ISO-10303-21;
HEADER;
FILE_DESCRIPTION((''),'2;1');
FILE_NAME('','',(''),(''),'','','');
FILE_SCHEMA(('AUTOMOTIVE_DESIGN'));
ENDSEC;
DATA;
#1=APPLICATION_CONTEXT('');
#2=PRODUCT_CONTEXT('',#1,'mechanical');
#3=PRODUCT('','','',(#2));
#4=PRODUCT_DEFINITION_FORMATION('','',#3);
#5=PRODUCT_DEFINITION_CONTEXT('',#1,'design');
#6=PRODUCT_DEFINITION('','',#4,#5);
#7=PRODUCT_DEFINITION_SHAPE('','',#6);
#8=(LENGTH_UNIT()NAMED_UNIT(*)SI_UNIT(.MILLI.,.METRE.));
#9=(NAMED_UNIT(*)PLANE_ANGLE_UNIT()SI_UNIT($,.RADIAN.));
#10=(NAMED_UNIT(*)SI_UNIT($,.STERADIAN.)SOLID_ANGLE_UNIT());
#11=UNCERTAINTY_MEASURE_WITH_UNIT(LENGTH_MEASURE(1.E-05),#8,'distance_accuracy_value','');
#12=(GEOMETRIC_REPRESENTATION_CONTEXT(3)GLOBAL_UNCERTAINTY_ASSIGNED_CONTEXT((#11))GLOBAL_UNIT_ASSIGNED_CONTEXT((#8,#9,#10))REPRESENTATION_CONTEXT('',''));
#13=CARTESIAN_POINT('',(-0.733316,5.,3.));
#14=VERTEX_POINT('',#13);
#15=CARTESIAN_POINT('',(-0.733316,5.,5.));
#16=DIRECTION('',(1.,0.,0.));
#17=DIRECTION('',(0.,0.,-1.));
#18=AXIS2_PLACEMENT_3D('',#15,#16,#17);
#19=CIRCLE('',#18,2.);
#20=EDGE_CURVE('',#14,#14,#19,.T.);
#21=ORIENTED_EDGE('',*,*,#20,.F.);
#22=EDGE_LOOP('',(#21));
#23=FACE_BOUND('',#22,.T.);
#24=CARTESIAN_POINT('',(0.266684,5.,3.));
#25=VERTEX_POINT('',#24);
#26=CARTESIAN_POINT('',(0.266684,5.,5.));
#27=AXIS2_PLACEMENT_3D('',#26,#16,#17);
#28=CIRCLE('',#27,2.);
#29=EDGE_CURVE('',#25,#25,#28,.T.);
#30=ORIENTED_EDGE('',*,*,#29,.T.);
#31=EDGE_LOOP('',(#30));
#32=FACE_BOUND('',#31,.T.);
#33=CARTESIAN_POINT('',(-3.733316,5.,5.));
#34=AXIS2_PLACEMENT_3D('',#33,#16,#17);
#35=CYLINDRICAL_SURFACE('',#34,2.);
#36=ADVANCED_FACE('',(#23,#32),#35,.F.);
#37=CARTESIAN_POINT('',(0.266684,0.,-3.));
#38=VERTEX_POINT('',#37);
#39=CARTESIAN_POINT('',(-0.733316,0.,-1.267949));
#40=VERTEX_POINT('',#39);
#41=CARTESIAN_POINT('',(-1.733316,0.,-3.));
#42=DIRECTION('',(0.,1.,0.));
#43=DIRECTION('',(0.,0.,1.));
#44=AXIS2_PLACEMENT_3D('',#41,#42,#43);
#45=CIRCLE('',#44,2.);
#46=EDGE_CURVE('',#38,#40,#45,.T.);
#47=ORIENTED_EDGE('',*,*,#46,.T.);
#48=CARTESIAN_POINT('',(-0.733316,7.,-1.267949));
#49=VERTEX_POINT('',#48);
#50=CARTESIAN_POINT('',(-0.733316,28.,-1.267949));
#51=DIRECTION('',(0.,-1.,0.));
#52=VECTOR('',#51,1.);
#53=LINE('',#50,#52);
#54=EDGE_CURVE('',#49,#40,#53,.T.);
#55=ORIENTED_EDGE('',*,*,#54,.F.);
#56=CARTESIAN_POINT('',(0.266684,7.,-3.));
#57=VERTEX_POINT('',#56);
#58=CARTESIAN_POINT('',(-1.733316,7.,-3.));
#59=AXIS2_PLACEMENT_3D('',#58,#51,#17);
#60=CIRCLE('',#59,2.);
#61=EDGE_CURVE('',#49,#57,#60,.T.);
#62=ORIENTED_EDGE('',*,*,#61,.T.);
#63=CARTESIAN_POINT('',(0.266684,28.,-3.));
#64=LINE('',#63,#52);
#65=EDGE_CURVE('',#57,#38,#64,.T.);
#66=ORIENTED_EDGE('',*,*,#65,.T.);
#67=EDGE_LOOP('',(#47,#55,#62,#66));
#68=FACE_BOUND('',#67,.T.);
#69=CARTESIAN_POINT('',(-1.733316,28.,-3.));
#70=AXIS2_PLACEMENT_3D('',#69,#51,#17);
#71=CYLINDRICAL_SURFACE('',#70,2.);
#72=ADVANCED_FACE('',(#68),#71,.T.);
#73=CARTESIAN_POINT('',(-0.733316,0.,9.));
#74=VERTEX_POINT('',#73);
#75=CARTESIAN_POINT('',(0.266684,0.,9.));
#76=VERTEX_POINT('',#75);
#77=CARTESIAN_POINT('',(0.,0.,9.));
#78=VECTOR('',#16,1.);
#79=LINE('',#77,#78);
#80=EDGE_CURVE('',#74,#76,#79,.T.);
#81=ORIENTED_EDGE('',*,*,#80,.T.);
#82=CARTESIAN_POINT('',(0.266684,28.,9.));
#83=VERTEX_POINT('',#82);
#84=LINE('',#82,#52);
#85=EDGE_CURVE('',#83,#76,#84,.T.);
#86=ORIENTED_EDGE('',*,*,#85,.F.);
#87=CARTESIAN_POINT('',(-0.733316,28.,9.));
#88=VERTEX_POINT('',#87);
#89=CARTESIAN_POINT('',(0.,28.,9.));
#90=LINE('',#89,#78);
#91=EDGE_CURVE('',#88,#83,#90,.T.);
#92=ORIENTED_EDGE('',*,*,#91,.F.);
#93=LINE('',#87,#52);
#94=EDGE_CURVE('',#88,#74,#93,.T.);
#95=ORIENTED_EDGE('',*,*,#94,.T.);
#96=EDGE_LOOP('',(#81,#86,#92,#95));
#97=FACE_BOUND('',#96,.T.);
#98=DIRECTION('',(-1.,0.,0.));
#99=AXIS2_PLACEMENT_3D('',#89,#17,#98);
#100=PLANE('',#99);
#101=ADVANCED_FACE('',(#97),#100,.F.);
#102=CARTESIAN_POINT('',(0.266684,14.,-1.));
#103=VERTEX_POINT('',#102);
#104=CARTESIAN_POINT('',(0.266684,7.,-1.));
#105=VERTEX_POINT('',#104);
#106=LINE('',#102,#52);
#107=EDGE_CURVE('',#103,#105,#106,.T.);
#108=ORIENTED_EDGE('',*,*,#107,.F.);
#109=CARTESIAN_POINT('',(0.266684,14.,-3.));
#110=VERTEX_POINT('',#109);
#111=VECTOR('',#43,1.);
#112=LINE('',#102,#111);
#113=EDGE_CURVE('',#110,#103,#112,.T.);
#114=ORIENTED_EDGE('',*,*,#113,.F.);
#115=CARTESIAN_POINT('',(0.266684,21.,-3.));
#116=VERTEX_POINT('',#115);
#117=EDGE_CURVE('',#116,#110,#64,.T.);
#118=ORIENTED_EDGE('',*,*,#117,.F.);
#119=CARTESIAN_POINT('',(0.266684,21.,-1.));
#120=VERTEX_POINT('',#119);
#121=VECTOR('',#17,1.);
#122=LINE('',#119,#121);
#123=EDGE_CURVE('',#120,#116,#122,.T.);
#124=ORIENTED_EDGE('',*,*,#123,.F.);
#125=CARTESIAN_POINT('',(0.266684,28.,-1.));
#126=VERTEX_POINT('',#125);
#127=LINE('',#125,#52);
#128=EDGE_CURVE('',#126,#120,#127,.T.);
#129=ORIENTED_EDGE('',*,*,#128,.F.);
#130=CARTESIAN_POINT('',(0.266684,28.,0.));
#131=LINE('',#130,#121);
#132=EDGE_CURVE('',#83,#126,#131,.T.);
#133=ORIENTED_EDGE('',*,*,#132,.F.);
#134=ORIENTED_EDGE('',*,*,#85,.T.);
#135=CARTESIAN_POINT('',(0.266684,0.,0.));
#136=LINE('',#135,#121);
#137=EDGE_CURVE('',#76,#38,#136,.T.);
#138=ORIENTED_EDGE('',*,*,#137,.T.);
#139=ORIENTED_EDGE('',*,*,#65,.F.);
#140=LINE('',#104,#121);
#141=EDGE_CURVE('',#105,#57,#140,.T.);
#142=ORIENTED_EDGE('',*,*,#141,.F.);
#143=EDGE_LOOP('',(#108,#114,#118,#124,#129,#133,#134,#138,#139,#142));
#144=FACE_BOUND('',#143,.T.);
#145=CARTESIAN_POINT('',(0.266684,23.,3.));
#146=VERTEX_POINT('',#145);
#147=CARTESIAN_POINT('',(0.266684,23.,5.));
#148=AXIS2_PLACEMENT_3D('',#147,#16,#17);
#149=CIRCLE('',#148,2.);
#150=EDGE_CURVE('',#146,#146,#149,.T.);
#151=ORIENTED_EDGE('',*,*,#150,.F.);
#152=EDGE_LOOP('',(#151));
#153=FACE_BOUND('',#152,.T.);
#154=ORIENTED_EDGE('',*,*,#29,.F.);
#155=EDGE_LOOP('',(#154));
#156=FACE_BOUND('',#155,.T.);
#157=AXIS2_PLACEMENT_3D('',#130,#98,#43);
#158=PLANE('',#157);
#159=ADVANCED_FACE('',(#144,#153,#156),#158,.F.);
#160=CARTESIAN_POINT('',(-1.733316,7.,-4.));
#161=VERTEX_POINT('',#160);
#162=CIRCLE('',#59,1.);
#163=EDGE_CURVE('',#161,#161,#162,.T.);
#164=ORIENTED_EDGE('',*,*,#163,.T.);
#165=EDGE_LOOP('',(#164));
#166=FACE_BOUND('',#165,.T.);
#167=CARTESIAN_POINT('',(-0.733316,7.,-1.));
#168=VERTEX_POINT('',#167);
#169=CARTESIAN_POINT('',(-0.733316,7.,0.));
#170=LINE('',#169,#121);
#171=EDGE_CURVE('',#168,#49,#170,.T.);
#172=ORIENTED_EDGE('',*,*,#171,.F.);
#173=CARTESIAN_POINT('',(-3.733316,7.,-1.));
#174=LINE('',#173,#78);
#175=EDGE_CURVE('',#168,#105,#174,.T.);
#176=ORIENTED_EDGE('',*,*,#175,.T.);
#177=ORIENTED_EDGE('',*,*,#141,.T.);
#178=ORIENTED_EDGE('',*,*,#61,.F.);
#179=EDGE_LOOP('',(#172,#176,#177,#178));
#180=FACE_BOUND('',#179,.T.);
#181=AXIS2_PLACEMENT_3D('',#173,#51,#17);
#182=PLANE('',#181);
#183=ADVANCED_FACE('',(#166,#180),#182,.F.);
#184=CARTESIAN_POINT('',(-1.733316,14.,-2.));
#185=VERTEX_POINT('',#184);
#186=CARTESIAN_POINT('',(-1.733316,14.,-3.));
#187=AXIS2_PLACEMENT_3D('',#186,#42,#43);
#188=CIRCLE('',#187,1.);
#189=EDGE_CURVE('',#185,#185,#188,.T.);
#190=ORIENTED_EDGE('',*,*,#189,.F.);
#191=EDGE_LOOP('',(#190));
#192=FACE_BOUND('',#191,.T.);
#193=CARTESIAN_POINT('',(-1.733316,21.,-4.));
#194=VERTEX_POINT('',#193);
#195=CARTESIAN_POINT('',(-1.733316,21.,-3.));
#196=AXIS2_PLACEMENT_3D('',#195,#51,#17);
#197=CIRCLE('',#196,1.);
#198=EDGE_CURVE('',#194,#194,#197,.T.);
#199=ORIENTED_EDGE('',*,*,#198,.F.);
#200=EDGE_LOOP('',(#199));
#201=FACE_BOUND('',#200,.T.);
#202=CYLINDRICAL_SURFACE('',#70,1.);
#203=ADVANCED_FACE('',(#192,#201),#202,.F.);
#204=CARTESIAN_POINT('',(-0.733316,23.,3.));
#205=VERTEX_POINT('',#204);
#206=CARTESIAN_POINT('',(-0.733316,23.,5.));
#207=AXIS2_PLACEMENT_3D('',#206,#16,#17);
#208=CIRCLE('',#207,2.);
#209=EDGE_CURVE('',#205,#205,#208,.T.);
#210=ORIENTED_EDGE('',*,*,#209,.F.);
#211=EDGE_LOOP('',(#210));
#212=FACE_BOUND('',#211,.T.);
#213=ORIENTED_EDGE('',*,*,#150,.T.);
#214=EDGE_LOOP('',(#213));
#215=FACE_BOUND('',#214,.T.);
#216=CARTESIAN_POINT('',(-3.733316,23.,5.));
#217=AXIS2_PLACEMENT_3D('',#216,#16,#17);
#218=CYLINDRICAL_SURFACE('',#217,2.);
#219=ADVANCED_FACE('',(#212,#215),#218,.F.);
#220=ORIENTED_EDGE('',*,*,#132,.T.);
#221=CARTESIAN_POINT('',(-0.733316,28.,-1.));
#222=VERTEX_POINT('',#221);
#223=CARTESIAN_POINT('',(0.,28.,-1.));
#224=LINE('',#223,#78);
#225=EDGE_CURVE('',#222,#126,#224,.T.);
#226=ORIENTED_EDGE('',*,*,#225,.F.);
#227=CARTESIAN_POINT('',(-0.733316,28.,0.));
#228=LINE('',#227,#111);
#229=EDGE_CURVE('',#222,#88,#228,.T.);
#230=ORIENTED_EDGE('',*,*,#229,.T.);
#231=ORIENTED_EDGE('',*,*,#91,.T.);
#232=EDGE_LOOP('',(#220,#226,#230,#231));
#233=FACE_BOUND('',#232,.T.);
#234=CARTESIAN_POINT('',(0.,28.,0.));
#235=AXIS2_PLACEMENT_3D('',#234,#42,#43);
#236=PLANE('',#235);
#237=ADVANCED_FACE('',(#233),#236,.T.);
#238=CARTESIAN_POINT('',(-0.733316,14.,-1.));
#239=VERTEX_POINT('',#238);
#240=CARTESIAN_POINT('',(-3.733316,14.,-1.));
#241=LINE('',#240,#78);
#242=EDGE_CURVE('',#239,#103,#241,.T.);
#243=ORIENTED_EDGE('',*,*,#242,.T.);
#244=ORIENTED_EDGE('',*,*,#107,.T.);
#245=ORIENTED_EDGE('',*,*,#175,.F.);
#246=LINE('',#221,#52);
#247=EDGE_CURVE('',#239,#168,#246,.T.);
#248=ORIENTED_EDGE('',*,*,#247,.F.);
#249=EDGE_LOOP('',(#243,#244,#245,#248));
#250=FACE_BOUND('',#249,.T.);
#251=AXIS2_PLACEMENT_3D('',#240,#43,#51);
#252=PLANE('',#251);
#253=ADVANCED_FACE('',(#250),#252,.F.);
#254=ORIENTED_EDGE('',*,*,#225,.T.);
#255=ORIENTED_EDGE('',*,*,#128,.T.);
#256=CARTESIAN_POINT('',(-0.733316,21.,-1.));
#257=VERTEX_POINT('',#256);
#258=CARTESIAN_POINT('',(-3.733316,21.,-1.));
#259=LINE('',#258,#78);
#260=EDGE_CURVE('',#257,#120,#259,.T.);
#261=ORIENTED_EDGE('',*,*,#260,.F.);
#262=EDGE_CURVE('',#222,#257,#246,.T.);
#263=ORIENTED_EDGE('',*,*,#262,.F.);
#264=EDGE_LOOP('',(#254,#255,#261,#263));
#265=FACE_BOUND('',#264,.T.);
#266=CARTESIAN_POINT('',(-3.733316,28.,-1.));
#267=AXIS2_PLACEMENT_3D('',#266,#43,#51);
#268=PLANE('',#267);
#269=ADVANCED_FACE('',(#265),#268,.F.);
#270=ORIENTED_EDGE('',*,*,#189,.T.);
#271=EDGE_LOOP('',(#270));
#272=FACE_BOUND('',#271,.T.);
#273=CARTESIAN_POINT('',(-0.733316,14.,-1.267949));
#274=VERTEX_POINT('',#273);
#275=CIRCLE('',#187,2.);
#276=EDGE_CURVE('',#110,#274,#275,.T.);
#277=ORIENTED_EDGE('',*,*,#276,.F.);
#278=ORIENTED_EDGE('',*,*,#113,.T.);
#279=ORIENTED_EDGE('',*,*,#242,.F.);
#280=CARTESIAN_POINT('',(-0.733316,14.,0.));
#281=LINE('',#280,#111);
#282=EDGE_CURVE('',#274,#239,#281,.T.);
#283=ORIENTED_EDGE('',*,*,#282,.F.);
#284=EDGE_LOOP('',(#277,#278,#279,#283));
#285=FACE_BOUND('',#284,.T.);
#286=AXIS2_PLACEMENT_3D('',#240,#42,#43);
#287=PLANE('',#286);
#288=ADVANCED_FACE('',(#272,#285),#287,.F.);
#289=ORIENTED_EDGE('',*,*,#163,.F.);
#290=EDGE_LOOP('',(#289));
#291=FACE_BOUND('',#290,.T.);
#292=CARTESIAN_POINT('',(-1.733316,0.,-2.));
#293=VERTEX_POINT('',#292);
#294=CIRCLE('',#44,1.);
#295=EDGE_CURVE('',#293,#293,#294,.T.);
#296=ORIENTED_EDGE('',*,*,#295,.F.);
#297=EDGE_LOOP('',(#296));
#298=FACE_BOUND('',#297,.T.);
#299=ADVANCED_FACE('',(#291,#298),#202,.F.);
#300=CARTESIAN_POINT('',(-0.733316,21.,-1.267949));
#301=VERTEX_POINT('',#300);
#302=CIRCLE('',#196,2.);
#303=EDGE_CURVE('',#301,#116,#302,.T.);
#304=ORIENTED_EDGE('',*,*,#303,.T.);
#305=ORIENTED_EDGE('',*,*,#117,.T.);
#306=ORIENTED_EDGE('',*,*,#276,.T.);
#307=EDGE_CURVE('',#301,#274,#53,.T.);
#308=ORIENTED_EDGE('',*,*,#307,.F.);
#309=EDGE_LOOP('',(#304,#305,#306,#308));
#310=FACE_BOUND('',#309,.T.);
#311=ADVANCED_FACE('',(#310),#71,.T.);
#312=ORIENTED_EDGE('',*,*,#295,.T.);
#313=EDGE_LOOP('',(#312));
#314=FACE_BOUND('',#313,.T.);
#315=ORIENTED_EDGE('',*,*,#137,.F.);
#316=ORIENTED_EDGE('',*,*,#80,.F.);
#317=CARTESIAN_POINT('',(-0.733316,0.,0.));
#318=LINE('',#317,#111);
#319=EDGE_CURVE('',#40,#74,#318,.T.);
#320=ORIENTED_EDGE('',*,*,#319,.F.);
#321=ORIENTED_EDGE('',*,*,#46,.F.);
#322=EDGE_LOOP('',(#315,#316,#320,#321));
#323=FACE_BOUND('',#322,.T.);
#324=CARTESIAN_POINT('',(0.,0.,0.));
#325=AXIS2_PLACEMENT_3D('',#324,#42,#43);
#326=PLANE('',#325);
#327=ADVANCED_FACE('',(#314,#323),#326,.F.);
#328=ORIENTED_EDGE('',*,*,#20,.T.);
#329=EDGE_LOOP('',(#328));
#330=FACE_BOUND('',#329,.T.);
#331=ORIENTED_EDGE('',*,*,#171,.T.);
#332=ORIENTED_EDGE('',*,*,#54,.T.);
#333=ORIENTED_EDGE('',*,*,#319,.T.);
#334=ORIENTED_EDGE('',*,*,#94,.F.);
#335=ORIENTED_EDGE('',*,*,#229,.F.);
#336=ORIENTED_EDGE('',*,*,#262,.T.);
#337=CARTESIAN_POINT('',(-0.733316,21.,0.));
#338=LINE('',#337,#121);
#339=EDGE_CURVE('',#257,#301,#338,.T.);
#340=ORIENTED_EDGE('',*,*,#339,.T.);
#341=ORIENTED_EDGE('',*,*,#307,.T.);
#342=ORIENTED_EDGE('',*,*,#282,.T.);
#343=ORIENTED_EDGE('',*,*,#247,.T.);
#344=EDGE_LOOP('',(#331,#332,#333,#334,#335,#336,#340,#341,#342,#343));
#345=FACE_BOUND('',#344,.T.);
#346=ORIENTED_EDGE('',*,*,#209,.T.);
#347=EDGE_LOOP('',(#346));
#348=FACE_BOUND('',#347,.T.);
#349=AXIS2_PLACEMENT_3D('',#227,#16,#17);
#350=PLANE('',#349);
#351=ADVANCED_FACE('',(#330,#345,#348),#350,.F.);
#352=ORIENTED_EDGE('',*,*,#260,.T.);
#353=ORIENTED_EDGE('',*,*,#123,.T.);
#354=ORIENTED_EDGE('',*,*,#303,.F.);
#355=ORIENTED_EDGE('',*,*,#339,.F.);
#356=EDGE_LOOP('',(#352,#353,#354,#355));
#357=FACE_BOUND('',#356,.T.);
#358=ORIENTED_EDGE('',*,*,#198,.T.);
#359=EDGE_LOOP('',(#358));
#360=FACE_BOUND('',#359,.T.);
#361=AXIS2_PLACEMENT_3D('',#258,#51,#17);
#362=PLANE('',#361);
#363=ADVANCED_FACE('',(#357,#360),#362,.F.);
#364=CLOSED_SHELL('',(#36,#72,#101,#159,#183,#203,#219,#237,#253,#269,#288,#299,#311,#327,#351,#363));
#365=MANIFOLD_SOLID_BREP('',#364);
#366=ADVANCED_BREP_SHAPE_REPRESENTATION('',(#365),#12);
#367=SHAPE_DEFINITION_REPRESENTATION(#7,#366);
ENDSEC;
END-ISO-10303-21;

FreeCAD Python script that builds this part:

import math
import FreeCAD as App
import Part
import Sketcher
from FreeCAD import Vector
Q = App.Units.Quantity

doc = App.newDocument("Part")
body = doc.addObject("PartDesign::Body", "Body")

sketch1 = body.newObject("Sketcher::SketchObject", "Sketch")
sketch1.AttachmentSupport = (doc.getObject("XZ_Plane"), [""])
sketch1.MapMode = "FlatFace"
sketch1.addGeometry(Part.ArcOfCircle(Part.Circle(Vector(-1.733316, -3, 0), Vector(0, 0, 1), 2), math.radians(60), math.radians(360)), False)
sketch1.addGeometry(Part.LineSegment(Vector(-0.733316, -1.267949, 0), Vector(-0.733316, 9, 0)), False)
sketch1.addGeometry(Part.LineSegment(Vector(-0.733316, 9, 0), Vector(0.266684, 9, 0)), False)
sketch1.addGeometry(Part.LineSegment(Vector(0.266684, 9, 0), Vector(0.266684, -3, 0)), False)
sketch1.addGeometry(Part.Circle(Vector(-1.733316, -3, 0), Vector(0, 0, 1), 1), False)
sketch1.addConstraint(Sketcher.Constraint("Coincident", 0, 1, 1, 1))
sketch1.addConstraint(Sketcher.Constraint("Coincident", 1, 2, 2, 1))
sketch1.addConstraint(Sketcher.Constraint("Coincident", 2, 2, 3, 1))
sketch1.addConstraint(Sketcher.Constraint("Tangent", 3, 2, 0, 2))
sketch1.addConstraint(Sketcher.Constraint("Vertical", 1))
sketch1.addConstraint(Sketcher.Constraint("Horizontal", 2))
sketch1.addConstraint(Sketcher.Constraint("Vertical", 3))
sketch1.addConstraint(Sketcher.Constraint("Coincident", 4, 3, 0, 3))
sketch1.addConstraint(Sketcher.Constraint("Diameter", 4, Q("2 mm")))
sketch1.addConstraint(Sketcher.Constraint("Radius", 0, Q("2 mm")))
sketch1.addConstraint(Sketcher.Constraint("DistanceX", 2, 1, 2, 2, Q("1 mm")))
sketch1.addConstraint(Sketcher.Constraint("DistanceY", 3, 2, 3, 1, Q("12 mm")))
sketch1.addConstraint(Sketcher.Constraint("DistanceY", 0, 3, -1, 1, Q("3 mm")))
sketch1.addConstraint(Sketcher.Constraint("DistanceX", 0, 3, -1, 1, Q("1.733316 mm")))
pad1 = body.newObject("PartDesign::Pad", "Pad")
pad1.Profile = sketch1
pad1.Length = 28
pad1.Reversed = True

sketch2 = body.newObject("Sketcher::SketchObject", "Sketch001")
sketch2.AttachmentSupport = (doc.getObject("YZ_Plane"), [""])
sketch2.MapMode = "FlatFace"
sketch2.AttachmentOffset = App.Placement(Vector(0, 0, 0.266684), App.Rotation())
sketch2.addGeometry(Part.LineSegment(Vector(28, -1, 0), Vector(21, -1, 0)), False)
sketch2.addGeometry(Part.LineSegment(Vector(21, -1, 0), Vector(21, -6.706881, 0)), False)
sketch2.addGeometry(Part.LineSegment(Vector(21, -6.706881, 0), Vector(28, -6.706881, 0)), False)
sketch2.addGeometry(Part.LineSegment(Vector(28, -6.706881, 0), Vector(28, -1, 0)), False)
sketch2.addGeometry(Part.LineSegment(Vector(14, -1, 0), Vector(7, -1, 0)), False)
sketch2.addGeometry(Part.LineSegment(Vector(7, -1, 0), Vector(7, -6.706881, 0)), False)
sketch2.addGeometry(Part.LineSegment(Vector(7, -6.706881, 0), Vector(14, -6.706881, 0)), False)
sketch2.addGeometry(Part.LineSegment(Vector(14, -6.706881, 0), Vector(14, -1, 0)), False)
sketch2.addConstraint(Sketcher.Constraint("Coincident", 0, 2, 1, 1))
sketch2.addConstraint(Sketcher.Constraint("Coincident", 1, 2, 2, 1))
sketch2.addConstraint(Sketcher.Constraint("Coincident", 2, 2, 3, 1))
sketch2.addConstraint(Sketcher.Constraint("Coincident", 3, 2, 0, 1))
sketch2.addConstraint(Sketcher.Constraint("Coincident", 4, 2, 5, 1))
sketch2.addConstraint(Sketcher.Constraint("Coincident", 5, 2, 6, 1))
sketch2.addConstraint(Sketcher.Constraint("Coincident", 6, 2, 7, 1))
sketch2.addConstraint(Sketcher.Constraint("Coincident", 7, 2, 4, 1))
sketch2.addConstraint(Sketcher.Constraint("Horizontal", 0))
sketch2.addConstraint(Sketcher.Constraint("Vertical", 1))
sketch2.addConstraint(Sketcher.Constraint("Horizontal", 2))
sketch2.addConstraint(Sketcher.Constraint("Vertical", 3))
sketch2.addConstraint(Sketcher.Constraint("Horizontal", 4))
sketch2.addConstraint(Sketcher.Constraint("Vertical", 5))
sketch2.addConstraint(Sketcher.Constraint("Horizontal", 6))
sketch2.addConstraint(Sketcher.Constraint("Vertical", 7))
sketch2.addConstraint(Sketcher.Constraint("Horizontal", 3, 2, 4, 2))
sketch2.addConstraint(Sketcher.Constraint("Horizontal", 2, 2, 5, 2))
sketch2.addConstraint(Sketcher.Constraint("Equal", 2, 4))
sketch2.addConstraint(Sketcher.Constraint("DistanceX", 0, 2, 0, 1, Q("7 mm")))
sketch2.addConstraint(Sketcher.Constraint("DistanceX", -1, 1, 0, 2, Q("21 mm")))
sketch2.addConstraint(Sketcher.Constraint("DistanceY", 0, 2, -1, 1, Q("1 mm")))
sketch2.addConstraint(Sketcher.Constraint("DistanceX", -1, 1, 4, 2, Q("7 mm")))
sketch2.addConstraint(Sketcher.Constraint("DistanceY", 1, 2, 1, 1, Q("5.706881 mm")))
pocket1 = body.newObject("PartDesign::Pocket", "Pocket")
pocket1.Profile = sketch2
pocket1.Type = "ThroughAll"

sketch3 = body.newObject("Sketcher::SketchObject", "Sketch002")
sketch3.AttachmentSupport = (doc.getObject("YZ_Plane"), [""])
sketch3.MapMode = "FlatFace"
sketch3.AttachmentOffset = App.Placement(Vector(0, 0, 0.266684), App.Rotation())
sketch3.addGeometry(Part.Circle(Vector(23, 5, 0), Vector(0, 0, 1), 2), False)
sketch3.addGeometry(Part.Circle(Vector(5, 5, 0), Vector(0, 0, 1), 2), False)
sketch3.addConstraint(Sketcher.Constraint("Equal", 0, 1))
sketch3.addConstraint(Sketcher.Constraint("Horizontal", 0, 3, 1, 3))
sketch3.addConstraint(Sketcher.Constraint("Diameter", 0, Q("4 mm")))
sketch3.addConstraint(Sketcher.Constraint("DistanceX", -1, 1, 0, 3, Q("23 mm")))
sketch3.addConstraint(Sketcher.Constraint("DistanceY", -1, 1, 0, 3, Q("5 mm")))
sketch3.addConstraint(Sketcher.Constraint("DistanceX", -1, 1, 1, 3, Q("5 mm")))
pocket2 = body.newObject("PartDesign::Pocket", "Pocket001")
pocket2.Profile = sketch3
pocket2.Type = "ThroughAll"

doc.recompute()
